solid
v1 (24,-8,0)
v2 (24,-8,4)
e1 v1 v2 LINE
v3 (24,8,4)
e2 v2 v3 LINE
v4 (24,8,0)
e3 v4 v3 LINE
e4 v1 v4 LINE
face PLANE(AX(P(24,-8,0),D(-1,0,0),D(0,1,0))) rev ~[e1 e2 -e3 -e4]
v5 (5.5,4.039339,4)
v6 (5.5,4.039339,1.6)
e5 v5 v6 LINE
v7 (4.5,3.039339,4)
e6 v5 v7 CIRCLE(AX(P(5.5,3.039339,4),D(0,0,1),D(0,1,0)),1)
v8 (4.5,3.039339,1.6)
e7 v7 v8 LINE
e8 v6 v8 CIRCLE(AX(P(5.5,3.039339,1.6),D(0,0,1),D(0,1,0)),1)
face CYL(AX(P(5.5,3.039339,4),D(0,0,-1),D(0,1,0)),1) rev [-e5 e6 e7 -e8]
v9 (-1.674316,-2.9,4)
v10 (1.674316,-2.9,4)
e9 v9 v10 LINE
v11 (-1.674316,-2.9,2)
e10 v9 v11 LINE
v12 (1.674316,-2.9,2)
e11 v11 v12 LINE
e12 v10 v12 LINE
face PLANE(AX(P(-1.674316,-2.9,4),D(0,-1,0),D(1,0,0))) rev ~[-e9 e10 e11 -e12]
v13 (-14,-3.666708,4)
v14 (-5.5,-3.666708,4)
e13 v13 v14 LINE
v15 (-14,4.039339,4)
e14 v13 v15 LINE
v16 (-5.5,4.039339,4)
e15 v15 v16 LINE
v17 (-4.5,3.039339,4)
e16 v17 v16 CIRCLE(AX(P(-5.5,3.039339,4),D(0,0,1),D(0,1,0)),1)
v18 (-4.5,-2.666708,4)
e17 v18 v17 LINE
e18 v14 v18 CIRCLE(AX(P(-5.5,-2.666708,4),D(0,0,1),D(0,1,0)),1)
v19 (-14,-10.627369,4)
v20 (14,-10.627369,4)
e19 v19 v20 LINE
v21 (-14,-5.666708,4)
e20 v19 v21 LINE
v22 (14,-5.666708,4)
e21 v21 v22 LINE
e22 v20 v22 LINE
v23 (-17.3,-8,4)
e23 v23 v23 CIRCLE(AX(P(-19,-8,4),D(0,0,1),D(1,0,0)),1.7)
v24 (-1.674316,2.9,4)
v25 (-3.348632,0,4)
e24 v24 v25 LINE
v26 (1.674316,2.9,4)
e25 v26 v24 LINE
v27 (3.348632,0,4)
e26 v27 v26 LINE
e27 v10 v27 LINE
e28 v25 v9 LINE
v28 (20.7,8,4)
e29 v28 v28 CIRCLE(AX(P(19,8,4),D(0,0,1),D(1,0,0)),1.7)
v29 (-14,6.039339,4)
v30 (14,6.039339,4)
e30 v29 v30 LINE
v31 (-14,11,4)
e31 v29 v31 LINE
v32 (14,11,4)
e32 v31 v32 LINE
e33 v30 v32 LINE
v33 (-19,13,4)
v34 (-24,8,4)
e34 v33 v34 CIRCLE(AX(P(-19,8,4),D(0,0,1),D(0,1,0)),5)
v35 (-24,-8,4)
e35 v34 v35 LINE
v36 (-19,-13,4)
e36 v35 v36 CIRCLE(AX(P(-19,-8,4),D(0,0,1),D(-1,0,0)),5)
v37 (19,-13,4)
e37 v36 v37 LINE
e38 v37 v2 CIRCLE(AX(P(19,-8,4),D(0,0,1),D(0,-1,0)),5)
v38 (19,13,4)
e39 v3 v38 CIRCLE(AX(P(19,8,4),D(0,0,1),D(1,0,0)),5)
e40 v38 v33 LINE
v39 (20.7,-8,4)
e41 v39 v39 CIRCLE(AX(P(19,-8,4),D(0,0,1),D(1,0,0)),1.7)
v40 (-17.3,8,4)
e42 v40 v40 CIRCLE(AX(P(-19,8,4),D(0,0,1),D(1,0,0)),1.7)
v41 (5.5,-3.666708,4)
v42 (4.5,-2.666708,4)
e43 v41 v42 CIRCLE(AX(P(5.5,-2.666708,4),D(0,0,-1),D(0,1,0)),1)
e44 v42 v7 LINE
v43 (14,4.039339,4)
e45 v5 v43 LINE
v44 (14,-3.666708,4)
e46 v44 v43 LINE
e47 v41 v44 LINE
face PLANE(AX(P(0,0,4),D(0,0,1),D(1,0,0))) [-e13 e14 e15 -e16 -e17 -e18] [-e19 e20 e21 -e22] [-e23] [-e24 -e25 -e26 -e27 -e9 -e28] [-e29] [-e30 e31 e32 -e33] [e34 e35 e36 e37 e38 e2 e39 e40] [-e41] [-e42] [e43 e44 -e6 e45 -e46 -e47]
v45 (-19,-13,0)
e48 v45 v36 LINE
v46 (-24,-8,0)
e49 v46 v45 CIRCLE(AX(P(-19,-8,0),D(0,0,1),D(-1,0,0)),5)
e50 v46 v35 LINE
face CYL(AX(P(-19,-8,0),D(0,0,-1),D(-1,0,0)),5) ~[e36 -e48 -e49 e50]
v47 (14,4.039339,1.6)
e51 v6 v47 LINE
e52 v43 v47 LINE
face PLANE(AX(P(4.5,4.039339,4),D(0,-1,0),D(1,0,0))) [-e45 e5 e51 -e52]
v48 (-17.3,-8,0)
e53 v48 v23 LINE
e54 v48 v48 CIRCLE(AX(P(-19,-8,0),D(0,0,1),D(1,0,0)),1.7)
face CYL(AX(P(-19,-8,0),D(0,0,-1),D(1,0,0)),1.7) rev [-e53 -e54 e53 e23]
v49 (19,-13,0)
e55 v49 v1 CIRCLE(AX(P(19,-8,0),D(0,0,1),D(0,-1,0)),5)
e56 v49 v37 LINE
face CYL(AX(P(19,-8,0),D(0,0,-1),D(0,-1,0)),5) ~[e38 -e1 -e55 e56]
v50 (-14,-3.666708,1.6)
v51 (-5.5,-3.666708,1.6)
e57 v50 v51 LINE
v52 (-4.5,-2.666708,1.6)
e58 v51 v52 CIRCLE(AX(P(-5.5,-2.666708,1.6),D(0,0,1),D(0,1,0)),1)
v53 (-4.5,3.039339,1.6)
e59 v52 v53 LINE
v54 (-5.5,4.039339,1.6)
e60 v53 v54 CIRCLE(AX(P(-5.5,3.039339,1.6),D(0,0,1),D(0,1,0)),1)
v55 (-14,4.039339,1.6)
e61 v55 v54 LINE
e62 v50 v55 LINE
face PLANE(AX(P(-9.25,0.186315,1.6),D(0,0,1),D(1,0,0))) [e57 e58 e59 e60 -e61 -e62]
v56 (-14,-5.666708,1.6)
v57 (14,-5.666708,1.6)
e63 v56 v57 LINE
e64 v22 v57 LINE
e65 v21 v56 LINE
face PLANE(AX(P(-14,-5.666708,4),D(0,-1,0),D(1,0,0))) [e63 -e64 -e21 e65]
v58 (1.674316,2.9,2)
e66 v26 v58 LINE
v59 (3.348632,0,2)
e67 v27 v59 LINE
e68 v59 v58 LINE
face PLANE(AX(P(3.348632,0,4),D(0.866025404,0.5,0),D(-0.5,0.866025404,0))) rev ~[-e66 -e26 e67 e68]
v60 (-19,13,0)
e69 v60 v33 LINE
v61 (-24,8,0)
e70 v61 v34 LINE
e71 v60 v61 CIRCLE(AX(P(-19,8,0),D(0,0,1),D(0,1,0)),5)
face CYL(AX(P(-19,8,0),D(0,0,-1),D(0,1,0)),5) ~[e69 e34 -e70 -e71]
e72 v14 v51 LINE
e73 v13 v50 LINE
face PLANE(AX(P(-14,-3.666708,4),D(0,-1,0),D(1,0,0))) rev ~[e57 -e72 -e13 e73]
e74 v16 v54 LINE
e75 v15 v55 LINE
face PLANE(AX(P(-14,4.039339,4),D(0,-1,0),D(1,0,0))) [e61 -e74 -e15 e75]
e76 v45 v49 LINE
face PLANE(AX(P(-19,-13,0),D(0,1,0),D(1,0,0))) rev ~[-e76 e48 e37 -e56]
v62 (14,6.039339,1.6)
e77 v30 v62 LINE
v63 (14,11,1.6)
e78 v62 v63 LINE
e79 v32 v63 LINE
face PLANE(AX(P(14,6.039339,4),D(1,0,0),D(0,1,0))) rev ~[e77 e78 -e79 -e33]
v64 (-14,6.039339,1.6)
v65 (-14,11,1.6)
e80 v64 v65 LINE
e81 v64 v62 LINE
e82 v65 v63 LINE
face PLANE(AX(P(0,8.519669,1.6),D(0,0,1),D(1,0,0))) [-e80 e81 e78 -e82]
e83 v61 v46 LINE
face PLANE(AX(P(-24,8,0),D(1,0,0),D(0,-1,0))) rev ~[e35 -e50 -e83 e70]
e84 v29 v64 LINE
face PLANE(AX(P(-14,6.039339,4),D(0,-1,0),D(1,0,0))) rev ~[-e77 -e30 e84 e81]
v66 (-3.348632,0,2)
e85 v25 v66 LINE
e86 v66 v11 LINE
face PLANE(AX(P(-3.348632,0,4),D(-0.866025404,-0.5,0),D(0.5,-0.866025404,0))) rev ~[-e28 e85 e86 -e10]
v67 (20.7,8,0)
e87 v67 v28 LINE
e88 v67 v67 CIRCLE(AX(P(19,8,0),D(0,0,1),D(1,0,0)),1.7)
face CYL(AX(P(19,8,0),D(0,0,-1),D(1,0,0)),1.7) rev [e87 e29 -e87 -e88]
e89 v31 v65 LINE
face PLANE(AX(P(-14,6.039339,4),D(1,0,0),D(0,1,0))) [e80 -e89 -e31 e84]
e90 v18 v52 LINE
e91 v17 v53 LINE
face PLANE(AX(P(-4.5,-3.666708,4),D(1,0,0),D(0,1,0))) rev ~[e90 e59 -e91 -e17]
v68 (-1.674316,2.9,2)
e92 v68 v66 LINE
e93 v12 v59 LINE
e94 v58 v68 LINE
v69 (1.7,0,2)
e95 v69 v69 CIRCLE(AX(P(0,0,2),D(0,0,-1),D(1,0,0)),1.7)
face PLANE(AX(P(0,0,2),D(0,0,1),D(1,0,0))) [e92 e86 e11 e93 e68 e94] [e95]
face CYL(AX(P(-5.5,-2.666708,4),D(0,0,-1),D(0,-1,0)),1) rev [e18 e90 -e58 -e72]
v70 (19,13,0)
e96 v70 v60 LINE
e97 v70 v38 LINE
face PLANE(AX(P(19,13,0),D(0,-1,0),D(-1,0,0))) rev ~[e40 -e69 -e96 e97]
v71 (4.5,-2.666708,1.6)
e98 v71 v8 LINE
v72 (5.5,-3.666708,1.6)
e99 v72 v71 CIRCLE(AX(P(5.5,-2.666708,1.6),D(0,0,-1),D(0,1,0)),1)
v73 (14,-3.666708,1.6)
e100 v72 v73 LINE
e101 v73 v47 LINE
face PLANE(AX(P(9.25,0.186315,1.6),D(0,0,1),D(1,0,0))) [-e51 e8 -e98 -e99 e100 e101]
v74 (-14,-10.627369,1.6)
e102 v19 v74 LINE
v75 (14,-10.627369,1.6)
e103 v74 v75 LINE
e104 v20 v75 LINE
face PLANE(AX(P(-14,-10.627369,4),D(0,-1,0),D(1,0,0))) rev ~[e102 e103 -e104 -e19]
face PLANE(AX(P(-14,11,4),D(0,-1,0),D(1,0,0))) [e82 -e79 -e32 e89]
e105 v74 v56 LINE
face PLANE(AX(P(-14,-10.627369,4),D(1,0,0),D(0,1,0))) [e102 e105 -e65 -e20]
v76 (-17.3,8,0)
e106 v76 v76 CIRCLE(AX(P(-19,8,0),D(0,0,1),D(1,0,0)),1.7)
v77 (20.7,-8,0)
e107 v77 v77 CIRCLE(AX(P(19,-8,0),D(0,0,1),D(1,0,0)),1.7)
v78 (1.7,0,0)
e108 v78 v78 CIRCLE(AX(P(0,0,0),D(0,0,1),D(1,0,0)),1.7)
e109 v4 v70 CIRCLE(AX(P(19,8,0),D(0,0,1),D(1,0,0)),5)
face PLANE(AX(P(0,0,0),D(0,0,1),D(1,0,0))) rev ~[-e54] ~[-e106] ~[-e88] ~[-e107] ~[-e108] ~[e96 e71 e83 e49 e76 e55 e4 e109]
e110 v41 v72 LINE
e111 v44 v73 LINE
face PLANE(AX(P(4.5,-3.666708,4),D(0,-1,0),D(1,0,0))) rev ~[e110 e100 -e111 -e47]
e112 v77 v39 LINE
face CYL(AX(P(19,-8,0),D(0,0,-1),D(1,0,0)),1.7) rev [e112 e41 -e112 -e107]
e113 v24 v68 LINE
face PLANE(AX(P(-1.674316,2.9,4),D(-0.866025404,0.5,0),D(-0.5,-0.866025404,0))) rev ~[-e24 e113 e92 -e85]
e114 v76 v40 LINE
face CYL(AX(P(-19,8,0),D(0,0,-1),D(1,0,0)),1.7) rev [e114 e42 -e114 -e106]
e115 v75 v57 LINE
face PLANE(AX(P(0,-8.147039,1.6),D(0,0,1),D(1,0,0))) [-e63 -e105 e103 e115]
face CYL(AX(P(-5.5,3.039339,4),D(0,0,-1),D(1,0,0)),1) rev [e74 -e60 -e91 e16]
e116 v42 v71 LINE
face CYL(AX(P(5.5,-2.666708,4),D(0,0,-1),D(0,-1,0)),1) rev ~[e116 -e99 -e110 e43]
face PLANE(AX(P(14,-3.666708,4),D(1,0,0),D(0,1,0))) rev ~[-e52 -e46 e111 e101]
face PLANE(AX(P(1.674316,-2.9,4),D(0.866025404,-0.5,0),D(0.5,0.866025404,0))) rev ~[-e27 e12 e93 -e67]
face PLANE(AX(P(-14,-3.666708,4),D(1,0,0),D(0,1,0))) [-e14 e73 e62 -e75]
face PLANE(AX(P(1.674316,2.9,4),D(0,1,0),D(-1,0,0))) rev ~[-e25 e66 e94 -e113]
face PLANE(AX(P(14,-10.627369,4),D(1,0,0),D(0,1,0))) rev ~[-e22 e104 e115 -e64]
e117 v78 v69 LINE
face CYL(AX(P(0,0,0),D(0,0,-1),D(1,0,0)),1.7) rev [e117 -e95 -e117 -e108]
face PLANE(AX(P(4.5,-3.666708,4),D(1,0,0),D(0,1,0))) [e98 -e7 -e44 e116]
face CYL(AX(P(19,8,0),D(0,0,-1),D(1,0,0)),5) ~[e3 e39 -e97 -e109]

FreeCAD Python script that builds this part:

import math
import FreeCAD as App
import Part
import Sketcher
Q = App.Units.Quantity


def edges_at(feature, points):
    """Names of the edges that pass closest to the given points."""
    edges = feature.Shape.Edges
    near = lambda p: min(range(len(edges)), key=lambda i: edges[i].distToShape(Part.Vertex(*p))[0])
    return sorted({f"Edge{near(p) + 1}" for p in points})


def add_polygon(sketch, points):
    """Adds a closed chain of lines whose ends are joined by coincident constraints."""
    first, n = sketch.GeometryCount, len(points)
    for a, b in zip(points, points[1:] + points[:1]):
        sketch.addGeometry(Part.LineSegment(App.Vector(*a, 0), App.Vector(*b, 0)), False)
    for i in range(n):
        sketch.addConstraint(Sketcher.Constraint("Coincident", first + i, 2, first + (i + 1) % n, 1))

doc = App.newDocument("Part")
body = doc.addObject("PartDesign::Body", "Body")

sketch1 = doc.addObject("Sketcher::SketchObject", "Sketch")
body.addObject(sketch1)
sketch1.AttachmentSupport = (doc.XY_Plane, [""])
sketch1.MapMode = "FlatFace"
sketch1.addGeometry(Part.LineSegment(App.Vector(-19, -13, 0), App.Vector(19, -13, 0)), False)
sketch1.addGeometry(Part.ArcOfCircle(Part.Circle(App.Vector(19, -8, 0), App.Vector(0, 0, 1), 5), math.radians(-90), math.radians(0)), False)
sketch1.addGeometry(Part.LineSegment(App.Vector(24, -8, 0), App.Vector(24, 8, 0)), False)
sketch1.addGeometry(Part.ArcOfCircle(Part.Circle(App.Vector(19, 8, 0), App.Vector(0, 0, 1), 5), math.radians(0), math.radians(90)), False)
sketch1.addGeometry(Part.LineSegment(App.Vector(19, 13, 0), App.Vector(-19, 13, 0)), False)
sketch1.addGeometry(Part.ArcOfCircle(Part.Circle(App.Vector(-19, 8, 0), App.Vector(0, 0, 1), 5), math.radians(90), math.radians(180)), False)
sketch1.addGeometry(Part.LineSegment(App.Vector(-24, 8, 0), App.Vector(-24, -8, 0)), False)
sketch1.addGeometry(Part.ArcOfCircle(Part.Circle(App.Vector(-19, -8, 0), App.Vector(0, 0, 1), 5), math.radians(180), math.radians(270)), False)
sketch1.addGeometry(Part.Circle(App.Vector(-19, -8, 0), App.Vector(0, 0, 1), 1.7), False)
sketch1.addGeometry(Part.Circle(App.Vector(19, -8, 0), App.Vector(0, 0, 1), 1.7), False)
sketch1.addGeometry(Part.Circle(App.Vector(-19, 8, 0), App.Vector(0, 0, 1), 1.7), False)
sketch1.addGeometry(Part.Circle(App.Vector(0, 0, 0), App.Vector(0, 0, 1), 1.7), False)
sketch1.addGeometry(Part.Circle(App.Vector(19, 8, 0), App.Vector(0, 0, 1), 1.7), False)
sketch1.addConstraint(Sketcher.Constraint("Tangent", 0, 2, 1, 1))
sketch1.addConstraint(Sketcher.Constraint("Tangent", 1, 2, 2, 1))
sketch1.addConstraint(Sketcher.Constraint("Tangent", 2, 2, 3, 1))
sketch1.addConstraint(Sketcher.Constraint("Tangent", 3, 2, 4, 1))
sketch1.addConstraint(Sketcher.Constraint("Tangent", 4, 2, 5, 1))
sketch1.addConstraint(Sketcher.Constraint("Tangent", 5, 2, 6, 1))
sketch1.addConstraint(Sketcher.Constraint("Tangent", 6, 2, 7, 1))
sketch1.addConstraint(Sketcher.Constraint("Tangent", 7, 2, 0, 1))
sketch1.addConstraint(Sketcher.Constraint("Horizontal", 0))
sketch1.addConstraint(Sketcher.Constraint("Vertical", 2))
sketch1.addConstraint(Sketcher.Constraint("Horizontal", 4))
sketch1.addConstraint(Sketcher.Constraint("Vertical", 6))
sketch1.addConstraint(Sketcher.Constraint("Coincident", 11, 3, -1, 1))
sketch1.addConstraint(Sketcher.Constraint("Coincident", 8, 3, 7, 3))
sketch1.addConstraint(Sketcher.Constraint("Coincident", 9, 3, 1, 3))
sketch1.addConstraint(Sketcher.Constraint("Coincident", 10, 3, 5, 3))
sketch1.addConstraint(Sketcher.Constraint("Coincident", 12, 3, 3, 3))
sketch1.addConstraint(Sketcher.Constraint("Equal", 1, 3))
sketch1.addConstraint(Sketcher.Constraint("Equal", 3, 5))
sketch1.addConstraint(Sketcher.Constraint("Equal", 5, 7))
sketch1.addConstraint(Sketcher.Constraint("Equal", 8, 9))
sketch1.addConstraint(Sketcher.Constraint("Equal", 9, 10))
sketch1.addConstraint(Sketcher.Constraint("Equal", 10, 11))
sketch1.addConstraint(Sketcher.Constraint("Equal", 11, 12))
sketch1.addConstraint(Sketcher.Constraint("Symmetric", 1, 3, 5, 3, -1, 1))
sketch1.addConstraint(Sketcher.Constraint("Radius", 1, Q("5 mm")))
sketch1.addConstraint(Sketcher.Constraint("Diameter", 8, Q("3.4 mm")))
sketch1.addConstraint(Sketcher.Constraint("DistanceX", 0, 1, 0, 2, Q("38 mm")))
sketch1.addConstraint(Sketcher.Constraint("DistanceY", 2, 1, 2, 2, Q("16 mm")))
pad1 = doc.addObject("PartDesign::Pad", "Pad")
body.addObject(pad1)
pad1.Profile = sketch1
pad1.Length = 4

sketch2 = doc.addObject("Sketcher::SketchObject", "Sketch001")
body.addObject(sketch2)
sketch2.AttachmentSupport = (doc.XY_Plane, [""])
sketch2.MapMode = "FlatFace"
sketch2.AttachmentOffset = App.Placement(App.Vector(0, 0, 4), App.Rotation())
add_polygon(sketch2, [(3.348632, 0), (1.674316, 2.9), (-1.674316, 2.9), (-3.348632, 0), (-1.674316, -2.9), (1.674316, -2.9)])
sketch2.addConstraint(Sketcher.Constraint("Horizontal", 1))
sketch2.addConstraint(Sketcher.Constraint("Horizontal", 4))
sketch2.addConstraint(Sketcher.Constraint("Symmetric", 0, 2, 3, 2, -1, 1))
sketch2.addConstraint(Sketcher.Constraint("Symmetric", 2, 2, 5, 2, -1, 1))
sketch2.addConstraint(Sketcher.Constraint("PointOnObject", 2, 2, -1))
sketch2.addConstraint(Sketcher.Constraint("Parallel", 2, 5))
sketch2.addConstraint(Sketcher.Constraint("Vertical", 1, 2, 3, 2))
sketch2.addConstraint(Sketcher.Constraint("Angle", 0, Q("120 deg")))
sketch2.addConstraint(Sketcher.Constraint("DistanceY", -1, 1, 0, 2, Q("2.9 mm")))
sketch2.addConstraint(Sketcher.Constraint("DistanceX", 1, 2, 1, 1, Q("3.348632 mm")))
pocket1 = doc.addObject("PartDesign::Pocket", "Pocket")
body.addObject(pocket1)
pocket1.Profile = sketch2
pocket1.Length = 2

sketch3 = doc.addObject("Sketcher::SketchObject", "Sketch002")
body.addObject(sketch3)
sketch3.AttachmentSupport = (doc.XY_Plane, [""])
sketch3.MapMode = "FlatFace"
sketch3.AttachmentOffset = App.Placement(App.Vector(0, 0, 4), App.Rotation())
add_polygon(sketch3, [(-14, 11), (-14, 6.039339), (14, 6.039339), (14, 11)])
add_polygon(sketch3, [(-14, 4.039339), (-14, -3.666708), (-4.5, -3.666708), (-4.5, 4.039339)])
add_polygon(sketch3, [(4.5, 4.039339), (4.5, -3.666708), (14, -3.666708), (14, 4.039339)])
add_polygon(sketch3, [(-14, -5.666708), (-14, -10.627369), (14, -10.627369), (14, -5.666708)])
sketch3.addConstraint(Sketcher.Constraint("Vertical", 0))
sketch3.addConstraint(Sketcher.Constraint("Horizontal", 1))
sketch3.addConstraint(Sketcher.Constraint("Vertical", 2))
sketch3.addConstraint(Sketcher.Constraint("Horizontal", 3))
sketch3.addConstraint(Sketcher.Constraint("Vertical", 4))
sketch3.addConstraint(Sketcher.Constraint("Horizontal", 5))
sketch3.addConstraint(Sketcher.Constraint("Vertical", 6))
sketch3.addConstraint(Sketcher.Constraint("Horizontal", 7))
sketch3.addConstraint(Sketcher.Constraint("Vertical", 8))
sketch3.addConstraint(Sketcher.Constraint("Horizontal", 9))
sketch3.addConstraint(Sketcher.Constraint("Vertical", 10))
sketch3.addConstraint(Sketcher.Constraint("Horizontal", 11))
sketch3.addConstraint(Sketcher.Constraint("Vertical", 12))
sketch3.addConstraint(Sketcher.Constraint("Horizontal", 13))
sketch3.addConstraint(Sketcher.Constraint("Vertical", 14))
sketch3.addConstraint(Sketcher.Constraint("Horizontal", 15))
sketch3.addConstraint(Sketcher.Constraint("Symmetric", 5, 2, 8, 2, -2))
sketch3.addConstraint(Sketcher.Constraint("Symmetric", 7, 2, 10, 2, -2))
sketch3.addConstraint(Sketcher.Constraint("Vertical", 3, 2, 4, 2))
sketch3.addConstraint(Sketcher.Constraint("Vertical", 2, 2, 9, 2))
sketch3.addConstraint(Sketcher.Constraint("Vertical", 7, 2, 12, 2))
sketch3.addConstraint(Sketcher.Constraint("Vertical", 10, 2, 13, 2))
sketch3.addConstraint(Sketcher.Constraint("Equal", 2, 12))
sketch3.addConstraint(Sketcher.Constraint("DistanceX", 1, 1, 1, 2, Q("28 mm")))
sketch3.addConstraint(Sketcher.Constraint("DistanceX", 5, 1, 5, 2, Q("9.5 mm")))
sketch3.addConstraint(Sketcher.Constraint("DistanceY", -1, 1, 2, 2, Q("11 mm")))
sketch3.addConstraint(Sketcher.Constraint("DistanceY", 6, 2, 0, 2, Q("2 mm")))
sketch3.addConstraint(Sketcher.Constraint("DistanceY", 14, 2, 9, 2, Q("2 mm")))
sketch3.addConstraint(Sketcher.Constraint("DistanceY", 0, 2, 0, 1, Q("4.960661 mm")))
sketch3.addConstraint(Sketcher.Constraint("DistanceY", 4, 2, 4, 1, Q("7.706047 mm")))
pocket2 = doc.addObject("PartDesign::Pocket", "Pocket001")
body.addObject(pocket2)
pocket2.Profile = sketch3
pocket2.Length = 2.4
doc.recompute()

fillet = doc.addObject("PartDesign::Fillet", "Fillet")
body.addObject(fillet)
fillet.Base = (pocket2, edges_at(pocket2, [
    (-4.5, 4.039, 2.8),
    (-4.5, -3.667, 2.8),
    (4.5, -3.667, 2.8),
    (4.5, 4.039, 2.8),
]))
fillet.Radius = 1

doc.recompute()
